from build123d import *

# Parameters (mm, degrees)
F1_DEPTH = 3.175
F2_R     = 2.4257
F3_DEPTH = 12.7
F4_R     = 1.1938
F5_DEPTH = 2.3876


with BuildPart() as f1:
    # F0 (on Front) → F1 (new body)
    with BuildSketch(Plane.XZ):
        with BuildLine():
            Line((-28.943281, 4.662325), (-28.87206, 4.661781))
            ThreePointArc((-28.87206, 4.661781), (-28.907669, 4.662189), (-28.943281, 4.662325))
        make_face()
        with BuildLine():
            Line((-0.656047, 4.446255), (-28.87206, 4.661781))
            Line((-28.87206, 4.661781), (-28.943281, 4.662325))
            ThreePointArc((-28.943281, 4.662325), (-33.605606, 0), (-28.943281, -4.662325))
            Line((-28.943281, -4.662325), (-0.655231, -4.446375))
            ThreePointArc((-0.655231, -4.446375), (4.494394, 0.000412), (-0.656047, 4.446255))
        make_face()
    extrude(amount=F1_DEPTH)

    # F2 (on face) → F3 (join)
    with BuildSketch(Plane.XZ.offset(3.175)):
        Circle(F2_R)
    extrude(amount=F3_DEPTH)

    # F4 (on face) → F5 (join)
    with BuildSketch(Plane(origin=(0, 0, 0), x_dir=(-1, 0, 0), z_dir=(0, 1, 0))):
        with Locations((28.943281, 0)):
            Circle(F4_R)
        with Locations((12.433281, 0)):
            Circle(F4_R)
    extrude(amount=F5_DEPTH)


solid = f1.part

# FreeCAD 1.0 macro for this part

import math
import FreeCAD as App
import Part
import Sketcher
from FreeCAD import Vector
Q = App.Units.Quantity

doc = App.newDocument("Part")
body = doc.addObject("PartDesign::Body", "Body")

sketch1 = body.newObject("Sketcher::SketchObject", "Sketch")
sketch1.AttachmentSupport = (doc.getObject("XZ_Plane"), [""])
sketch1.MapMode = "FlatFace"
sketch1.addGeometry([
    Part.ArcOfCircle(Part.Circle(Vector(-28.94328, 0.000081, 0), Vector(0, 0, 1), 4.662244), math.radians(89.124726), math.radians(90.000018)),
    Part.ArcOfCircle(Part.Circle(Vector(-28.943281, 0, 0), Vector(0, 0, 1), 4.662325), math.radians(90), math.radians(270)),
    Part.LineSegment(Vector(-28.943281, -4.662325, 0), Vector(-0.655231, -4.446375, 0)),
    Part.ArcOfCircle(Part.Circle(Vector(0, 0, 0), Vector(0, 0, 1), 4.494394), math.radians(-98.38294), math.radians(98.393455)),
    Part.LineSegment(Vector(-0.656047, 4.446255, 0), Vector(-28.87206, 4.661781, 0)),
], False)
sketch1.addConstraint([
    Sketcher.Constraint("Tangent", 0, 2, 1, 1),
    Sketcher.Constraint("Coincident", 1, 2, 2, 1),
    Sketcher.Constraint("Coincident", 2, 2, 3, 1),
    Sketcher.Constraint("Coincident", 3, 2, 4, 1),
    Sketcher.Constraint("Coincident", 4, 2, 0, 1),
    Sketcher.Constraint("Coincident", 3, 3, -1, 1),
    Sketcher.Constraint("Symmetric", 0, 2, 1, 2, -1),
    Sketcher.Constraint("Vertical", 1, 3, 0, 2),
    Sketcher.Constraint("Radius", 0, Q("4.662244 mm")),
    Sketcher.Constraint("Radius", 1, Q("4.662325 mm")),
    Sketcher.Constraint("Radius", 3, Q("4.494394 mm")),
    Sketcher.Constraint("DistanceY", 2, 2, 0, 2, Q("9.1087 mm")),
    Sketcher.Constraint("DistanceY", 0, 3, 4, 2, Q("4.6617 mm")),
    Sketcher.Constraint("DistanceX", 0, 3, -1, 1, Q("28.94328 mm")),
    Sketcher.Constraint("DistanceY", 2, 2, 3, 2, Q("8.89263 mm")),
])
pad1 = body.newObject("PartDesign::Pad", "Pad")
pad1.Profile = sketch1
pad1.Length = Q("0.125 in")

sketch2 = body.newObject("Sketcher::SketchObject", "Sketch001")
sketch2.AttachmentSupport = (doc.getObject("XZ_Plane"), [""])
sketch2.MapMode = "FlatFace"
sketch2.AttachmentOffset = App.Placement(Vector(0, 0, 0.125 * 25.4), App.Rotation())
sketch2.addGeometry(Part.Circle(Vector(0, 0, 0), Vector(0, 0, 1), 2.4257), False)
sketch2.addConstraint([
    Sketcher.Constraint("Coincident", 0, 3, -1, 1),
    Sketcher.Constraint("Diameter", 0, Q("0.191 in")),
])
pad2 = body.newObject("PartDesign::Pad", "Pad001")
pad2.Profile = sketch2
pad2.Length = Q("0.5 in")

sketch3 = body.newObject("Sketcher::SketchObject", "Sketch002")
sketch3.AttachmentSupport = (doc.getObject("XZ_Plane"), [""])
sketch3.MapMode = "FlatFace"
sketch3.addGeometry([
    Part.Circle(Vector(-28.943281, 0, 0), Vector(0, 0, 1), 1.1938),
    Part.Circle(Vector(-12.433281, 0, 0), Vector(0, 0, 1), 1.1938),
], False)
sketch3.addConstraint([
    Sketcher.Constraint("Equal", 0, 1),
    Sketcher.Constraint("PointOnObject", 0, 3, -1),
    Sketcher.Constraint("PointOnObject", 1, 3, -1),
    Sketcher.Constraint("Diameter", 0, Q("0.094 in")),
    Sketcher.Constraint("DistanceX", 0, 3, 1, 3, Q("0.65 in")),
    Sketcher.Constraint("DistanceX", 0, 3, -1, 1, Q("28.943281 mm")),
])
pad3 = body.newObject("PartDesign::Pad", "Pad002")
pad3.Profile = sketch3
pad3.Length = Q("0.094 in")
pad3.Reversed = True

doc.recompute()
